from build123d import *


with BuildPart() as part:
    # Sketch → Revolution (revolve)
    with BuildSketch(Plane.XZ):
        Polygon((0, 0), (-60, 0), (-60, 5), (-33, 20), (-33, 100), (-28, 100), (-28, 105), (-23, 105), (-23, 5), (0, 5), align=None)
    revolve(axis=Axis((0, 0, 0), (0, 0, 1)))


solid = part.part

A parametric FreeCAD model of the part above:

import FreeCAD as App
import Part
import Sketcher
from FreeCAD import Vector

doc = App.newDocument("Part")
body = doc.addObject("PartDesign::Body", "Body")

# Sketch on XZ plane
sketch1 = body.newObject("Sketcher::SketchObject", "Sketch")
sketch1.AttachmentSupport = (doc.getObject("XZ_Plane"), [""])
sketch1.MapMode = "FlatFace"
sketch1.addGeometry([
    Part.LineSegment(Vector(-60, 0, 0), Vector(0, 0, 0)),  # 0
    Part.LineSegment(Vector(0, 0, 0), Vector(0, 5, 0)),  # 1
    Part.LineSegment(Vector(0, 5, 0), Vector(-23, 5, 0)),  # 2
    Part.LineSegment(Vector(-23, 5, 0), Vector(-23, 105, 0)),  # 3
    Part.LineSegment(Vector(-23, 105, 0), Vector(-28, 105, 0)),  # 4
    Part.LineSegment(Vector(-28, 105, 0), Vector(-28, 100, 0)),  # 5
    Part.LineSegment(Vector(-28, 100, 0), Vector(-33, 100, 0)),  # 6
    Part.LineSegment(Vector(-33, 100, 0), Vector(-33, 20, 0)),  # 7
    Part.LineSegment(Vector(-33, 20, 0), Vector(-60, 5, 0)),  # 8
    Part.LineSegment(Vector(-60, 5, 0), Vector(-60, 0, 0)),  # 9
], False)
sketch1.addConstraint([
    Sketcher.Constraint("Coincident", 0, 2, 1, 1),
    Sketcher.Constraint("Coincident", 1, 2, 2, 1),
    Sketcher.Constraint("Coincident", 2, 2, 3, 1),
    Sketcher.Constraint("Coincident", 3, 2, 4, 1),
    Sketcher.Constraint("Coincident", 4, 2, 5, 1),
    Sketcher.Constraint("Coincident", 5, 2, 6, 1),
    Sketcher.Constraint("Coincident", 6, 2, 7, 1),
    Sketcher.Constraint("Coincident", 7, 2, 8, 1),
    Sketcher.Constraint("Coincident", 8, 2, 9, 1),
    Sketcher.Constraint("Coincident", 9, 2, 0, 1),
    Sketcher.Constraint("Horizontal", 0),
    Sketcher.Constraint("Vertical", 1),
    Sketcher.Constraint("Horizontal", 2),
    Sketcher.Constraint("Vertical", 3),
    Sketcher.Constraint("Horizontal", 4),
    Sketcher.Constraint("Vertical", 5),
    Sketcher.Constraint("Horizontal", 6),
    Sketcher.Constraint("Vertical", 7),
    Sketcher.Constraint("Vertical", 9),
    Sketcher.Constraint("Coincident", 0, 2, -1, 1),
    Sketcher.Constraint("Horizontal", 2, 2, 8, 2),
    Sketcher.Constraint("Equal", 4, 6),
    Sketcher.Constraint("Equal", 6, 1),
    Sketcher.Constraint("Equal", 1, 5),
    Sketcher.Constraint("DistanceX", 0, 1, 0, 2, 60.0),
    Sketcher.Constraint("DistanceX", 2, 2, 2, 1, 23.0),
    Sketcher.Constraint("DistanceX", 4, 2, 4, 1, 5.0),
    Sketcher.Constraint("DistanceY", 3, 1, 3, 2, 100.0),
    Sketcher.Constraint("DistanceY", 7, 2, 7, 1, 80.0),
])
revolution = body.newObject("PartDesign::Revolution", "Revolution")
revolution.Profile = sketch1
revolution.ReferenceAxis = (sketch1, ["V_Axis"])
revolution.Angle = 360

doc.recompute()
